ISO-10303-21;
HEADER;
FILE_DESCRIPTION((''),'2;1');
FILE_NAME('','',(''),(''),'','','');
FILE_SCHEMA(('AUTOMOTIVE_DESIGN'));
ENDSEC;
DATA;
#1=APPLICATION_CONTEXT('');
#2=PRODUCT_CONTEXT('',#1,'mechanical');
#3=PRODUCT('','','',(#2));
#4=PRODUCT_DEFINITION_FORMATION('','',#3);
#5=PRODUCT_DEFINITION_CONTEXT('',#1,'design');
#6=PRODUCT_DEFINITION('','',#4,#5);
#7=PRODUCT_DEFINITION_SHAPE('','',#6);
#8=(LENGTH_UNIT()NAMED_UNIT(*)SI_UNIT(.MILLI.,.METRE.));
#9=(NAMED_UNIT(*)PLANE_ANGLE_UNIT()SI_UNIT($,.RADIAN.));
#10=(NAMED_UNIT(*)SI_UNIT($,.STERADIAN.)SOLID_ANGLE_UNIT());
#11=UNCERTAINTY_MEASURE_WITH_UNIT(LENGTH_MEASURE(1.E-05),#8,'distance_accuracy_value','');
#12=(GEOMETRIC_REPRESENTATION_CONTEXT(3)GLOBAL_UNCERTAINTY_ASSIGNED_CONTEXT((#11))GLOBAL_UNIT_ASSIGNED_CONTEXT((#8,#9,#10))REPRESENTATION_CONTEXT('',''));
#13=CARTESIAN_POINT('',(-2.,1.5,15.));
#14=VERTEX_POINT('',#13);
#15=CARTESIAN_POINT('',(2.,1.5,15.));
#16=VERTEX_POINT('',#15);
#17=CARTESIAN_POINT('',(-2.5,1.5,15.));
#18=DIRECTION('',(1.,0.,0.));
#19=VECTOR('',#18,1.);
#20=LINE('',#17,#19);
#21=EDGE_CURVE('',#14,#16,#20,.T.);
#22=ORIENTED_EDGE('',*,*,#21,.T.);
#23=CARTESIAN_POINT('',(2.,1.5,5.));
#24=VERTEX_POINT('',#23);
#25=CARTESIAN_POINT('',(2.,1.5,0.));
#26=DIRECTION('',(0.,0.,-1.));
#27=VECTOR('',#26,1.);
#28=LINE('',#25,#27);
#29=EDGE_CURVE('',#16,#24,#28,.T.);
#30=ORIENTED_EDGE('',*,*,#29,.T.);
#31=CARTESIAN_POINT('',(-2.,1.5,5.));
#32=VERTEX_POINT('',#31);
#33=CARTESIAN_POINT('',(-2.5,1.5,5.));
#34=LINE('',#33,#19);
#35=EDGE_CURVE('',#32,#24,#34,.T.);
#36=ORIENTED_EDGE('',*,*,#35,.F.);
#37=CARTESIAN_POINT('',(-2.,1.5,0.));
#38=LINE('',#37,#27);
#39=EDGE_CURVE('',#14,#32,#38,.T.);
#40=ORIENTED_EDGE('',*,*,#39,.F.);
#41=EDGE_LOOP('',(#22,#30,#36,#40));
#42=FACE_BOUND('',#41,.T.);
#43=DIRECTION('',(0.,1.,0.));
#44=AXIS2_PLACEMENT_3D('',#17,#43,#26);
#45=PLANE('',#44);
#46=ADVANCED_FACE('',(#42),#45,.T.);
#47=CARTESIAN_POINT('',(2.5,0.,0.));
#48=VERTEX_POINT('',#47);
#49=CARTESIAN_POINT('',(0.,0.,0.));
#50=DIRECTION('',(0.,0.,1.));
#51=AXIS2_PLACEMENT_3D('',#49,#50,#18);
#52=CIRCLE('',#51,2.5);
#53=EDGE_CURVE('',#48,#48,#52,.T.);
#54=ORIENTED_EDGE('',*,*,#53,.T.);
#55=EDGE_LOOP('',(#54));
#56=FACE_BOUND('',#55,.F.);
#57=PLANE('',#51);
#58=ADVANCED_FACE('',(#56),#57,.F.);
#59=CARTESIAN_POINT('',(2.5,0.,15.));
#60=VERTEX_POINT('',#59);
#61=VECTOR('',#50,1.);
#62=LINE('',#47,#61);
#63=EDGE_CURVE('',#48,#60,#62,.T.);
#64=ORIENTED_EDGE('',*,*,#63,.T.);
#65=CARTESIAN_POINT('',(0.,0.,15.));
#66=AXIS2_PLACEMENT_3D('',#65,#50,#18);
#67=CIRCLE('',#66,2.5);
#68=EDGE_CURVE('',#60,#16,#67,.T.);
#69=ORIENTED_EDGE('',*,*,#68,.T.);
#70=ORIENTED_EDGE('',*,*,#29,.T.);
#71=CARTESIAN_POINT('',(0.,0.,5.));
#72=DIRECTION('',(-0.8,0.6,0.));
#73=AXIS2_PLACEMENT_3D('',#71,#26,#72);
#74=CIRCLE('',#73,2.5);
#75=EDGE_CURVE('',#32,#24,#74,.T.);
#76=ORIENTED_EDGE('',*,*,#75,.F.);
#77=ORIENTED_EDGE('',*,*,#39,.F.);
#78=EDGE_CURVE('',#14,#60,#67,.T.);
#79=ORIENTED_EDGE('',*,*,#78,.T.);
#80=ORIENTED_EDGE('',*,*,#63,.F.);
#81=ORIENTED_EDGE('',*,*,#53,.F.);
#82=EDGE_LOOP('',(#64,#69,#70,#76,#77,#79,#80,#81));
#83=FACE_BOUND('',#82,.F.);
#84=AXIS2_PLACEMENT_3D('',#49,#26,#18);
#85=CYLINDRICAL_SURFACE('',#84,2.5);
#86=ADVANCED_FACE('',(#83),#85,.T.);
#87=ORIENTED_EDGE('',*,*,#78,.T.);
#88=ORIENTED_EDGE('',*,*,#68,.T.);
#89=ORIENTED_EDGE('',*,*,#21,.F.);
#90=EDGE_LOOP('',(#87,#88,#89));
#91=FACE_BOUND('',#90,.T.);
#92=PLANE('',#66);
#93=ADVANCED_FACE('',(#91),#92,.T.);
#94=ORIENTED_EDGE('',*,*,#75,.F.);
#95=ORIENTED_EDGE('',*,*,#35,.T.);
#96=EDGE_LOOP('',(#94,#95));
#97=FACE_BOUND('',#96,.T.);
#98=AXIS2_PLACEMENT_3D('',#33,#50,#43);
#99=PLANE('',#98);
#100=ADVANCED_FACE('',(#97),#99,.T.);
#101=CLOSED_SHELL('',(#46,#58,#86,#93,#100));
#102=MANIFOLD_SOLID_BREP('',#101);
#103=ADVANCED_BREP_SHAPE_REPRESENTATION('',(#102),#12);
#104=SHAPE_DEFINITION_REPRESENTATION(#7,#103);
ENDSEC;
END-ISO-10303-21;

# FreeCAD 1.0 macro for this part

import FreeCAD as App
import Part
import Sketcher

V = App.Vector
Q = App.Units.Quantity


def add_polygon(sketch, points):
    """Adds a closed chain of lines whose ends are joined by coincident constraints."""
    first, n = sketch.GeometryCount, len(points)
    for a, b in zip(points, points[1:] + points[:1]):
        sketch.addGeometry(Part.LineSegment(App.Vector(*a, 0), App.Vector(*b, 0)), False)
    for i in range(n):
        sketch.addConstraint(Sketcher.Constraint("Coincident", first + i, 2, first + (i + 1) % n, 1))

doc = App.newDocument("Part")
body = doc.addObject("PartDesign::Body", "Body")

# Sketch on XY plane
sketch1 = body.newObject("Sketcher::SketchObject", "Sketch")
sketch1.AttachmentSupport = (doc.getObject("XY_Plane"), [""])
sketch1.MapMode = "FlatFace"
sketch1.addGeometry(Part.Circle(V(0, 0, 0), V(0, 0, 1), 2.5), False)
sketch1.addConstraint([
    Sketcher.Constraint("Coincident", 0, 3, -1, 1),
    Sketcher.Constraint("Diameter", 0, Q("5 mm")),
])
pad1 = body.newObject("PartDesign::Pad", "Pad")
pad1.Profile = sketch1
pad1.Length = 15

# Sketch on YZ plane
sketch2 = body.newObject("Sketcher::SketchObject", "Sketch001")
sketch2.AttachmentSupport = (doc.getObject("YZ_Plane"), [""])
sketch2.MapMode = "FlatFace"
sketch2.AttachmentOffset = App.Placement(V(0, 0, -2.5), App.Rotation())
add_polygon(sketch2, [(2.5, 5), (2.5, 15), (1.5, 15), (1.5, 5)])  # lines 0-3
sketch2.addConstraint([
    Sketcher.Constraint("Vertical", 0),
    Sketcher.Constraint("Horizontal", 1),
    Sketcher.Constraint("Vertical", 2),
    Sketcher.Constraint("Horizontal", 3),
    Sketcher.Constraint("DistanceX", 1, 2, 1, 1, Q("1 mm")),
    Sketcher.Constraint("DistanceY", 0, 1, 0, 2, Q("10 mm")),
    Sketcher.Constraint("DistanceY", -1, 1, 0, 2, Q("15 mm")),
    Sketcher.Constraint("DistanceX", -1, 1, 0, 2, Q("2.5 mm")),
])
pocket1 = body.newObject("PartDesign::Pocket", "Pocket")
pocket1.Profile = sketch2
pocket1.Type = "ThroughAll"
pocket1.Reversed = True

doc.recompute()
